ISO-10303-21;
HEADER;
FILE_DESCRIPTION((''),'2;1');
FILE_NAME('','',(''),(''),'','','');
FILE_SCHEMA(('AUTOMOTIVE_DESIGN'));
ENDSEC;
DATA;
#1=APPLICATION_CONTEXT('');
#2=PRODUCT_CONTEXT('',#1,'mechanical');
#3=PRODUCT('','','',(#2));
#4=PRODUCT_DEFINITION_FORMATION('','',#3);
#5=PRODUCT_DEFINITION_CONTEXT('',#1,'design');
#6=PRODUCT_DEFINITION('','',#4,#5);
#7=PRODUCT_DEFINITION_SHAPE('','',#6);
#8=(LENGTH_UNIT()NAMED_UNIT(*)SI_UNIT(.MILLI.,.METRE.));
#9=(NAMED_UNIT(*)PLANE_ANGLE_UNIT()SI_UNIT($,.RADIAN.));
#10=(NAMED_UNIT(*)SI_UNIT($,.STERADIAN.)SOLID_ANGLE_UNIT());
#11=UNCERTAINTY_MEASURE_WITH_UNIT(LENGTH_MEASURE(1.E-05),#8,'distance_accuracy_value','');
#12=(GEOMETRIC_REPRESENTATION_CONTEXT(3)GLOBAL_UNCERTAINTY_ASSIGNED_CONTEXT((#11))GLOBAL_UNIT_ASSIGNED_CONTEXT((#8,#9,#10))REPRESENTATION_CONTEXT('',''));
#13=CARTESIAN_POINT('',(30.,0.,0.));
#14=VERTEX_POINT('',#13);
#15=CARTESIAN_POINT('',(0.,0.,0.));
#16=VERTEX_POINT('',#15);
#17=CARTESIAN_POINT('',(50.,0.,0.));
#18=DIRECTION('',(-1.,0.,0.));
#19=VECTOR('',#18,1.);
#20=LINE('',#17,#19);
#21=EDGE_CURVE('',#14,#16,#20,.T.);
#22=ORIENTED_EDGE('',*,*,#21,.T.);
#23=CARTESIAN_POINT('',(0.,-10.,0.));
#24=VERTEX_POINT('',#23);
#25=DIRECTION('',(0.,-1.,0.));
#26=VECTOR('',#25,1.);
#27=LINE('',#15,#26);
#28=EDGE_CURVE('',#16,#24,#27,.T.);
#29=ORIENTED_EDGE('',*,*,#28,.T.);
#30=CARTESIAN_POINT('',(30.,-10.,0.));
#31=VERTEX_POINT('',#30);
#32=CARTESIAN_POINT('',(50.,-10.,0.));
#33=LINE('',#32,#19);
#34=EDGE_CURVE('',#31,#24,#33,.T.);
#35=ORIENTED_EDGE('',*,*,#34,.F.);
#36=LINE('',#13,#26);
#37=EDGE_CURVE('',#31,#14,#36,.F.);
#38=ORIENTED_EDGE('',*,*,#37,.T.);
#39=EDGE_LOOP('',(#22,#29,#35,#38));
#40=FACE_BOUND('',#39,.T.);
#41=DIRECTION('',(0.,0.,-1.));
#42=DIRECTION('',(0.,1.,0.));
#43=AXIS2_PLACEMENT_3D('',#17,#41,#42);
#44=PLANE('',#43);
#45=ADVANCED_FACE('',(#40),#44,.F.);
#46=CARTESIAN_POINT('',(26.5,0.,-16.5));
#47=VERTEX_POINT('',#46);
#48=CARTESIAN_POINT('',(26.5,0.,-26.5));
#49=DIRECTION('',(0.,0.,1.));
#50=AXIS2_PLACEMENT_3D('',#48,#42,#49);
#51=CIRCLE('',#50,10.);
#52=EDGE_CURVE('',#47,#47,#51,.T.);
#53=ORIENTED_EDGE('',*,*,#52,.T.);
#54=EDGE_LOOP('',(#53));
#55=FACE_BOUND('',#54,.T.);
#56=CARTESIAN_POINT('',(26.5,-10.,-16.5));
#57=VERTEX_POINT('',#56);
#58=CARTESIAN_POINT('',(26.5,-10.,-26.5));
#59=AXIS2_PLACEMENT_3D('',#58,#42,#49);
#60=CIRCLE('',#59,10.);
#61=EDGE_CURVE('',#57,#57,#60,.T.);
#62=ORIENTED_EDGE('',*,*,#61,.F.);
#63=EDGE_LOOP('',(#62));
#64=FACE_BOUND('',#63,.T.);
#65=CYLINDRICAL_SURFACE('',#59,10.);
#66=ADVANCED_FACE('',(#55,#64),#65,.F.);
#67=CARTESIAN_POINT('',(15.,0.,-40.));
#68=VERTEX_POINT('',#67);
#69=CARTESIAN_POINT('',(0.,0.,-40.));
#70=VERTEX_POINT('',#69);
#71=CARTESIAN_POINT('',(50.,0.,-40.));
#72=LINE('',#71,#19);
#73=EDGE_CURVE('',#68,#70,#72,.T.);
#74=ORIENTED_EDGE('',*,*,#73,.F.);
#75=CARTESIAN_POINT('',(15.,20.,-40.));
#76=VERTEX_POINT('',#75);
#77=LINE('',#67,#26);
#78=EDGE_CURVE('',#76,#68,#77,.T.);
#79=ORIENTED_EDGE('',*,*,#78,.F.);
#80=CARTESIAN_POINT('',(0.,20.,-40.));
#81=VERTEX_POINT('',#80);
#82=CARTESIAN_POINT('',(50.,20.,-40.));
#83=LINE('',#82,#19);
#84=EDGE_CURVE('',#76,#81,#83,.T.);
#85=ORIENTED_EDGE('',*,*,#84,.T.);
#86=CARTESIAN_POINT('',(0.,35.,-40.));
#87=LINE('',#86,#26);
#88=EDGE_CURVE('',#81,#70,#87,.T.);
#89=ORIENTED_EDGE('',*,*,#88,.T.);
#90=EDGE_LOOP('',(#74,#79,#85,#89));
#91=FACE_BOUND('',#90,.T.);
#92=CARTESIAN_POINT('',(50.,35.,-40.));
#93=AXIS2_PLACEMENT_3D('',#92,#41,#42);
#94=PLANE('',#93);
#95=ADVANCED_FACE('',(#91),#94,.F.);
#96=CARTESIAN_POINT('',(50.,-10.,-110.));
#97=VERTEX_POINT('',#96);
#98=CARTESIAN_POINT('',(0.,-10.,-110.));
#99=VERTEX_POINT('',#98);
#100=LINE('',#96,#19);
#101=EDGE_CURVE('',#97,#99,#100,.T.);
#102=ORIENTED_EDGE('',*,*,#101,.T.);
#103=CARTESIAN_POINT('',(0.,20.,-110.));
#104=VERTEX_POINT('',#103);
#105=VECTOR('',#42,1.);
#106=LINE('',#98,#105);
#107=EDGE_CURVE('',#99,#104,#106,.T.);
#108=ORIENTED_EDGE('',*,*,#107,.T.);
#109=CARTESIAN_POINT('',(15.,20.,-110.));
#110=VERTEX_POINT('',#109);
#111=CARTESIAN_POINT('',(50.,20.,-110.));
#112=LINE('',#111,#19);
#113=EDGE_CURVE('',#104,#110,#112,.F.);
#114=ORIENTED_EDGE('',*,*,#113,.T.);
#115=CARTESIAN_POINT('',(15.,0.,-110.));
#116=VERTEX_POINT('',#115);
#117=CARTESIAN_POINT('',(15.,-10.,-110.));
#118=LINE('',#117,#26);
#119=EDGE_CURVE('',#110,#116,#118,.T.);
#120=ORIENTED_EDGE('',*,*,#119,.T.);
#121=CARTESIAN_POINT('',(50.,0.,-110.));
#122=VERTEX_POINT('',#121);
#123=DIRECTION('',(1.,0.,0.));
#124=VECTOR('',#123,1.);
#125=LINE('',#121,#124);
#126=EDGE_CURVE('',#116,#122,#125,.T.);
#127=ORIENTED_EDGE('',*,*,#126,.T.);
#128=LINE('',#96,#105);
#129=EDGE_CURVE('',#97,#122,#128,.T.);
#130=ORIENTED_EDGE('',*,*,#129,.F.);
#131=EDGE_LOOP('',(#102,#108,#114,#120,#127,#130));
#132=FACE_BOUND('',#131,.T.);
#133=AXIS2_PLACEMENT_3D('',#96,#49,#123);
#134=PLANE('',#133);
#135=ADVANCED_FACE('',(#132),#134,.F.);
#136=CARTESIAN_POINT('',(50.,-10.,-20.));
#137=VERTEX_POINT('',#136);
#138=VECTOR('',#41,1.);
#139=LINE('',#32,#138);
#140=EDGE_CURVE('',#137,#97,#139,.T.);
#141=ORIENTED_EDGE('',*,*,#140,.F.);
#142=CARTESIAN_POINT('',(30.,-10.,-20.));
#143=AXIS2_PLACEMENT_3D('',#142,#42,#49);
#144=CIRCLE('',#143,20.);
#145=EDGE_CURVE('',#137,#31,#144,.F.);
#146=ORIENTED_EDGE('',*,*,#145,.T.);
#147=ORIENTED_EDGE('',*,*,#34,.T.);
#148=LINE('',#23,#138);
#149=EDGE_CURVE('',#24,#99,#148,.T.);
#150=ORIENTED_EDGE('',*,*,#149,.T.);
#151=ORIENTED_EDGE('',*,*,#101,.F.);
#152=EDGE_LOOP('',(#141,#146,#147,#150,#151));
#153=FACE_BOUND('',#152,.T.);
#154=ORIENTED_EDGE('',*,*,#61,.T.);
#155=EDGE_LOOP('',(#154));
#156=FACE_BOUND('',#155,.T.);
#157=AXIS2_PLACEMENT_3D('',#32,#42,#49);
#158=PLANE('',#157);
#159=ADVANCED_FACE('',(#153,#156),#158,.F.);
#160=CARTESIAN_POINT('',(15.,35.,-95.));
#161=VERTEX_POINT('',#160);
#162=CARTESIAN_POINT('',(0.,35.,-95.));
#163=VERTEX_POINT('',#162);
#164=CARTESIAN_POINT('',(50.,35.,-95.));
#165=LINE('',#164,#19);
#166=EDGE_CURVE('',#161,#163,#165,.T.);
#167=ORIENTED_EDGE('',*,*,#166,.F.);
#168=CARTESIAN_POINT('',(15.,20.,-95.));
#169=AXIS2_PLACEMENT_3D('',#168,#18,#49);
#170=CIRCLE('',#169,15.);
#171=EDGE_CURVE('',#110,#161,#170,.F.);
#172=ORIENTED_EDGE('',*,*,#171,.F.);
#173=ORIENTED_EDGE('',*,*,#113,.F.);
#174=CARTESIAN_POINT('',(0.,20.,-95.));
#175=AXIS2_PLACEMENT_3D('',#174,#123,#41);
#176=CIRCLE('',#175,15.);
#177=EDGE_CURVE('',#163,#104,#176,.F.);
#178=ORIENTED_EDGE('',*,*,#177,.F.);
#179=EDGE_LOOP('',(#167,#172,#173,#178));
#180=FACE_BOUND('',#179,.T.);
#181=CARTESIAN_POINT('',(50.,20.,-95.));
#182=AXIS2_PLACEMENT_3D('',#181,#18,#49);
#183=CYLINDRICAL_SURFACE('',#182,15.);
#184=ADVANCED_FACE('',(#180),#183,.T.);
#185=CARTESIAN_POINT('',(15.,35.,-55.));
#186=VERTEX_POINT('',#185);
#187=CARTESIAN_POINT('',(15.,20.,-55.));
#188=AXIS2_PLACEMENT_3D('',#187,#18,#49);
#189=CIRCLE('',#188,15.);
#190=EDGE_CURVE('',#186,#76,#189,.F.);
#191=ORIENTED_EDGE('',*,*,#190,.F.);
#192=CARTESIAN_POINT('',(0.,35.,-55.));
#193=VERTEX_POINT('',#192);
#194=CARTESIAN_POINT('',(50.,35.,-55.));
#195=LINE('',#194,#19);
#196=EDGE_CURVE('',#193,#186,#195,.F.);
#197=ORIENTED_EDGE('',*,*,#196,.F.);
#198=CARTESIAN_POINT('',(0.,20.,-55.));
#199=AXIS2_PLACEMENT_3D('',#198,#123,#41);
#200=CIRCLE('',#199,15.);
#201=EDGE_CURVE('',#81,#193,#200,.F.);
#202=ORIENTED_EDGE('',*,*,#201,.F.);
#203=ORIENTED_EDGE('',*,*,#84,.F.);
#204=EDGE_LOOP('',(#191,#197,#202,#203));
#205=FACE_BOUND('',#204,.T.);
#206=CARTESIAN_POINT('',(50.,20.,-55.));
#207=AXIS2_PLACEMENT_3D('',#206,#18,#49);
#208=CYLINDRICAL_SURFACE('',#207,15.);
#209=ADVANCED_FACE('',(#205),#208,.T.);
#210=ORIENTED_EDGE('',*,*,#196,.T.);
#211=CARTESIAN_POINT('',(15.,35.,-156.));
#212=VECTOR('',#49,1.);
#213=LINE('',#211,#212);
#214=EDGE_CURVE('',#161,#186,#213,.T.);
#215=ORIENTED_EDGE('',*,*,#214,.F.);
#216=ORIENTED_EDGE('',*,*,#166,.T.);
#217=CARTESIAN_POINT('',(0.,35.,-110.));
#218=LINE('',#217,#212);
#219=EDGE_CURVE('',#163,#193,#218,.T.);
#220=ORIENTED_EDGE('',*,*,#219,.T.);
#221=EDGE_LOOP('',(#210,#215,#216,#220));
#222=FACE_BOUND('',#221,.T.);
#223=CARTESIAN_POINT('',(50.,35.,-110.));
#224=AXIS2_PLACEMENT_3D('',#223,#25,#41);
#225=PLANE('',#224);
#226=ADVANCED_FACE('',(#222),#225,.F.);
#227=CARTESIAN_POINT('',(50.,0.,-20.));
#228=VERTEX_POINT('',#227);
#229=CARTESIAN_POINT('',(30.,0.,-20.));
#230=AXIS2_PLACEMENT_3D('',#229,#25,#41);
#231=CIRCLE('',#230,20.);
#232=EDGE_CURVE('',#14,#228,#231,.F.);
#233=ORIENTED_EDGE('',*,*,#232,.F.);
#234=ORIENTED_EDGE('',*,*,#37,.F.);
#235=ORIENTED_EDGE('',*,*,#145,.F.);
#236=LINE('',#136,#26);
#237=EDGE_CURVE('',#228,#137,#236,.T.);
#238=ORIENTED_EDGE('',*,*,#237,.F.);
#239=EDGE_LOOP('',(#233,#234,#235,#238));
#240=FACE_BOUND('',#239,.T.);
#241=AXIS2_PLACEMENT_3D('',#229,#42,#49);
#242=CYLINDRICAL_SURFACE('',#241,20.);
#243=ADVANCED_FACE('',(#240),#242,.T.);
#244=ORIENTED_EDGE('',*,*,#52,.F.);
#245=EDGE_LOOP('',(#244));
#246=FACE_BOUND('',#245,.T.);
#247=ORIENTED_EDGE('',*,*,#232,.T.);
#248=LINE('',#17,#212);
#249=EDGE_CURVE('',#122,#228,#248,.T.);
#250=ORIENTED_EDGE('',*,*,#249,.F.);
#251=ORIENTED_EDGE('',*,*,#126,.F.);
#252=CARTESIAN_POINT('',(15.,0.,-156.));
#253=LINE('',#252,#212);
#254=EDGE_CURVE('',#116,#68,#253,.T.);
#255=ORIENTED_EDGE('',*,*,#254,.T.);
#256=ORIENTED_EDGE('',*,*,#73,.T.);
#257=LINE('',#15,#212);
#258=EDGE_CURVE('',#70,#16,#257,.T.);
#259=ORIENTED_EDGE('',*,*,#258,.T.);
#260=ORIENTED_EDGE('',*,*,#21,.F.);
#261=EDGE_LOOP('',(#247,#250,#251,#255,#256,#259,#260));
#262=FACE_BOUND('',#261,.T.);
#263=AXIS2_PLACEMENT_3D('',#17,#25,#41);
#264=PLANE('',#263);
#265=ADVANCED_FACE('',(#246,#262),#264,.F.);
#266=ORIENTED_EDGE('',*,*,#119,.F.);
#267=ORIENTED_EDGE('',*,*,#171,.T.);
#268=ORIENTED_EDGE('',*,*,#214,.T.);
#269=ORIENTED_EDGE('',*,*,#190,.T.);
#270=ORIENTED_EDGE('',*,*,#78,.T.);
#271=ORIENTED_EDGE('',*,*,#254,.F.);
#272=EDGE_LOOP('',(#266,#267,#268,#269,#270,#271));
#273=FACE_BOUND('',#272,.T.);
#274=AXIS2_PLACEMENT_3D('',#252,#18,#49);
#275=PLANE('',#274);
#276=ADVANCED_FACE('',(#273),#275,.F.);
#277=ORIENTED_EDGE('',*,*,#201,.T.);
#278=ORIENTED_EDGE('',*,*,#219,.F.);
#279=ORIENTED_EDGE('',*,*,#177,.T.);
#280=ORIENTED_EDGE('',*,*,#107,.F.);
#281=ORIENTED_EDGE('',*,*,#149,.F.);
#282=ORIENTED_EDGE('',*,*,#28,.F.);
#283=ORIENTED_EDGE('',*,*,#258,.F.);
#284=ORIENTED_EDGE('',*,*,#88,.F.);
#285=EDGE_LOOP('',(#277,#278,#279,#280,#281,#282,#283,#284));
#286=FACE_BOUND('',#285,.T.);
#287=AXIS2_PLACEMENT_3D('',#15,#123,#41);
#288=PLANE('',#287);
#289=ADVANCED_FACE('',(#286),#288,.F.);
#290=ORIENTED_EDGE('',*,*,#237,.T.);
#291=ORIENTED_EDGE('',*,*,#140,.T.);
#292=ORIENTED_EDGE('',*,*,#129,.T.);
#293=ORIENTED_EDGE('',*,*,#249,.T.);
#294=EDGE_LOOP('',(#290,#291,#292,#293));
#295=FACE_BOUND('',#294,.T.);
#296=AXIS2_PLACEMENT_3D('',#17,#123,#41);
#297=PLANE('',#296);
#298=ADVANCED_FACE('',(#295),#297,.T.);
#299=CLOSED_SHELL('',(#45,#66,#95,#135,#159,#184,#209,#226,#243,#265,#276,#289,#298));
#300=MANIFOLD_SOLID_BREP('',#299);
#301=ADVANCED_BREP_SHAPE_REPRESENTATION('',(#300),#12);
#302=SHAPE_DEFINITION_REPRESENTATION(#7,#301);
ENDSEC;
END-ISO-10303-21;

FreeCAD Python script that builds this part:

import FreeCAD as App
import Part
import Sketcher
from FreeCAD import Vector


def edges_at(feature, points):
    """Names of the edges that pass closest to the given points."""
    edges = feature.Shape.Edges
    near = lambda p: min(range(len(edges)), key=lambda i: edges[i].distToShape(Part.Vertex(*p))[0])
    return sorted({f"Edge{near(p) + 1}" for p in points})

doc = App.newDocument("Part")
body = doc.addObject("PartDesign::Body", "Body")

# Sketch on YZ plane
sketch1 = body.newObject("Sketcher::SketchObject", "Sketch")
sketch1.AttachmentSupport = (doc.getObject("YZ_Plane"), [""])
sketch1.MapMode = "FlatFace"
sketch1.addGeometry([
    Part.LineSegment(Vector(0, -40, 0), Vector(0, 0, 0)),  # 0
    Part.LineSegment(Vector(0, 0, 0), Vector(-10, 0, 0)),  # 1
    Part.LineSegment(Vector(-10, 0, 0), Vector(-10, -110, 0)),  # 2
    Part.LineSegment(Vector(-10, -110, 0), Vector(35, -110, 0)),  # 3
    Part.LineSegment(Vector(35, -110, 0), Vector(35, -40, 0)),  # 4
    Part.LineSegment(Vector(35, -40, 0), Vector(0, -40, 0)),  # 5
], False)
sketch1.addConstraint([
    Sketcher.Constraint("Coincident", 0, 2, 1, 1),
    Sketcher.Constraint("Coincident", 1, 2, 2, 1),
    Sketcher.Constraint("Coincident", 2, 2, 3, 1),
    Sketcher.Constraint("Coincident", 3, 2, 4, 1),
    Sketcher.Constraint("Coincident", 4, 2, 5, 1),
    Sketcher.Constraint("Coincident", 5, 2, 0, 1),
    Sketcher.Constraint("Vertical", 0),
    Sketcher.Constraint("Horizontal", 1),
    Sketcher.Constraint("Vertical", 2),
    Sketcher.Constraint("Horizontal", 3),
    Sketcher.Constraint("Vertical", 4),
    Sketcher.Constraint("Horizontal", 5),
    Sketcher.Constraint("Coincident", 0, 2, -1, 1),
    Sketcher.Constraint("DistanceX", 1, 2, 1, 1, 10.0),
    Sketcher.Constraint("DistanceX", 3, 1, 3, 2, 45.0),
    Sketcher.Constraint("DistanceY", 0, 1, 0, 2, 40.0),
    Sketcher.Constraint("DistanceY", 2, 2, 2, 1, 110.0),
])
pad1 = body.newObject("PartDesign::Pad", "Pad")
pad1.Profile = sketch1
pad1.Length = 50

# Sketch on XY plane
sketch2 = body.newObject("Sketcher::SketchObject", "Sketch001")
sketch2.AttachmentSupport = (doc.getObject("XY_Plane"), [""])
sketch2.MapMode = "FlatFace"
sketch2.AttachmentOffset = App.Placement(Vector(0, 0, -40), App.Rotation())
sketch2.addGeometry([
    Part.LineSegment(Vector(15, 35, 0), Vector(15, 0, 0)),
    Part.LineSegment(Vector(15, 0, 0), Vector(50, 0, 0)),
    Part.LineSegment(Vector(50, 0, 0), Vector(50, 35, 0)),
    Part.LineSegment(Vector(50, 35, 0), Vector(15, 35, 0)),
], False)
sketch2.addConstraint([
    Sketcher.Constraint("Coincident", 0, 2, 1, 1),
    Sketcher.Constraint("Coincident", 1, 2, 2, 1),
    Sketcher.Constraint("Coincident", 2, 2, 3, 1),
    Sketcher.Constraint("Coincident", 3, 2, 0, 1),
    Sketcher.Constraint("Vertical", 0),
    Sketcher.Constraint("Horizontal", 1),
    Sketcher.Constraint("Vertical", 2),
    Sketcher.Constraint("Horizontal", 3),
    Sketcher.Constraint("PointOnObject", 0, 2, -1),
    Sketcher.Constraint("Equal", 3, 0),
    Sketcher.Constraint("DistanceX", 1, 1, 1, 2, 35.0),
    Sketcher.Constraint("DistanceX", -1, 1, 0, 2, 15.0),
])
pocket1 = body.newObject("PartDesign::Pocket", "Pocket")
pocket1.Profile = sketch2
pocket1.Length = 116
doc.recompute()

fillet = body.newObject("PartDesign::Fillet", "Fillet")
fillet.Base = (pocket1, edges_at(pocket1, [(7.5, 35, -40), (7.5, 35, -110)]))
fillet.Radius = 15

# Sketch on XZ plane
sketch3 = body.newObject("Sketcher::SketchObject", "Sketch002")
sketch3.AttachmentSupport = (doc.getObject("XZ_Plane"), [""])
sketch3.MapMode = "FlatFace"
sketch3.addGeometry(Part.Circle(Vector(26, -26, 0), Vector(0, 0, 1), 10), False)
sketch3.addConstraint([
    Sketcher.Constraint("Diameter", 0, 20.0),
    Sketcher.Constraint("DistanceX", -1, 1, 0, 3, 26.5),
    Sketcher.Constraint("DistanceY", 0, 3, -1, 1, 26.5),
])
pocket2 = body.newObject("PartDesign::Pocket", "Pocket001")
pocket2.Profile = sketch3
pocket2.Length = 10
pocket2.Reversed = True
doc.recompute()

fillet2 = body.newObject("PartDesign::Fillet", "Fillet001")
fillet2.Base = (pocket2, edges_at(pocket2, [(50, -5, 0)]))
fillet2.Radius = 20

doc.recompute()
